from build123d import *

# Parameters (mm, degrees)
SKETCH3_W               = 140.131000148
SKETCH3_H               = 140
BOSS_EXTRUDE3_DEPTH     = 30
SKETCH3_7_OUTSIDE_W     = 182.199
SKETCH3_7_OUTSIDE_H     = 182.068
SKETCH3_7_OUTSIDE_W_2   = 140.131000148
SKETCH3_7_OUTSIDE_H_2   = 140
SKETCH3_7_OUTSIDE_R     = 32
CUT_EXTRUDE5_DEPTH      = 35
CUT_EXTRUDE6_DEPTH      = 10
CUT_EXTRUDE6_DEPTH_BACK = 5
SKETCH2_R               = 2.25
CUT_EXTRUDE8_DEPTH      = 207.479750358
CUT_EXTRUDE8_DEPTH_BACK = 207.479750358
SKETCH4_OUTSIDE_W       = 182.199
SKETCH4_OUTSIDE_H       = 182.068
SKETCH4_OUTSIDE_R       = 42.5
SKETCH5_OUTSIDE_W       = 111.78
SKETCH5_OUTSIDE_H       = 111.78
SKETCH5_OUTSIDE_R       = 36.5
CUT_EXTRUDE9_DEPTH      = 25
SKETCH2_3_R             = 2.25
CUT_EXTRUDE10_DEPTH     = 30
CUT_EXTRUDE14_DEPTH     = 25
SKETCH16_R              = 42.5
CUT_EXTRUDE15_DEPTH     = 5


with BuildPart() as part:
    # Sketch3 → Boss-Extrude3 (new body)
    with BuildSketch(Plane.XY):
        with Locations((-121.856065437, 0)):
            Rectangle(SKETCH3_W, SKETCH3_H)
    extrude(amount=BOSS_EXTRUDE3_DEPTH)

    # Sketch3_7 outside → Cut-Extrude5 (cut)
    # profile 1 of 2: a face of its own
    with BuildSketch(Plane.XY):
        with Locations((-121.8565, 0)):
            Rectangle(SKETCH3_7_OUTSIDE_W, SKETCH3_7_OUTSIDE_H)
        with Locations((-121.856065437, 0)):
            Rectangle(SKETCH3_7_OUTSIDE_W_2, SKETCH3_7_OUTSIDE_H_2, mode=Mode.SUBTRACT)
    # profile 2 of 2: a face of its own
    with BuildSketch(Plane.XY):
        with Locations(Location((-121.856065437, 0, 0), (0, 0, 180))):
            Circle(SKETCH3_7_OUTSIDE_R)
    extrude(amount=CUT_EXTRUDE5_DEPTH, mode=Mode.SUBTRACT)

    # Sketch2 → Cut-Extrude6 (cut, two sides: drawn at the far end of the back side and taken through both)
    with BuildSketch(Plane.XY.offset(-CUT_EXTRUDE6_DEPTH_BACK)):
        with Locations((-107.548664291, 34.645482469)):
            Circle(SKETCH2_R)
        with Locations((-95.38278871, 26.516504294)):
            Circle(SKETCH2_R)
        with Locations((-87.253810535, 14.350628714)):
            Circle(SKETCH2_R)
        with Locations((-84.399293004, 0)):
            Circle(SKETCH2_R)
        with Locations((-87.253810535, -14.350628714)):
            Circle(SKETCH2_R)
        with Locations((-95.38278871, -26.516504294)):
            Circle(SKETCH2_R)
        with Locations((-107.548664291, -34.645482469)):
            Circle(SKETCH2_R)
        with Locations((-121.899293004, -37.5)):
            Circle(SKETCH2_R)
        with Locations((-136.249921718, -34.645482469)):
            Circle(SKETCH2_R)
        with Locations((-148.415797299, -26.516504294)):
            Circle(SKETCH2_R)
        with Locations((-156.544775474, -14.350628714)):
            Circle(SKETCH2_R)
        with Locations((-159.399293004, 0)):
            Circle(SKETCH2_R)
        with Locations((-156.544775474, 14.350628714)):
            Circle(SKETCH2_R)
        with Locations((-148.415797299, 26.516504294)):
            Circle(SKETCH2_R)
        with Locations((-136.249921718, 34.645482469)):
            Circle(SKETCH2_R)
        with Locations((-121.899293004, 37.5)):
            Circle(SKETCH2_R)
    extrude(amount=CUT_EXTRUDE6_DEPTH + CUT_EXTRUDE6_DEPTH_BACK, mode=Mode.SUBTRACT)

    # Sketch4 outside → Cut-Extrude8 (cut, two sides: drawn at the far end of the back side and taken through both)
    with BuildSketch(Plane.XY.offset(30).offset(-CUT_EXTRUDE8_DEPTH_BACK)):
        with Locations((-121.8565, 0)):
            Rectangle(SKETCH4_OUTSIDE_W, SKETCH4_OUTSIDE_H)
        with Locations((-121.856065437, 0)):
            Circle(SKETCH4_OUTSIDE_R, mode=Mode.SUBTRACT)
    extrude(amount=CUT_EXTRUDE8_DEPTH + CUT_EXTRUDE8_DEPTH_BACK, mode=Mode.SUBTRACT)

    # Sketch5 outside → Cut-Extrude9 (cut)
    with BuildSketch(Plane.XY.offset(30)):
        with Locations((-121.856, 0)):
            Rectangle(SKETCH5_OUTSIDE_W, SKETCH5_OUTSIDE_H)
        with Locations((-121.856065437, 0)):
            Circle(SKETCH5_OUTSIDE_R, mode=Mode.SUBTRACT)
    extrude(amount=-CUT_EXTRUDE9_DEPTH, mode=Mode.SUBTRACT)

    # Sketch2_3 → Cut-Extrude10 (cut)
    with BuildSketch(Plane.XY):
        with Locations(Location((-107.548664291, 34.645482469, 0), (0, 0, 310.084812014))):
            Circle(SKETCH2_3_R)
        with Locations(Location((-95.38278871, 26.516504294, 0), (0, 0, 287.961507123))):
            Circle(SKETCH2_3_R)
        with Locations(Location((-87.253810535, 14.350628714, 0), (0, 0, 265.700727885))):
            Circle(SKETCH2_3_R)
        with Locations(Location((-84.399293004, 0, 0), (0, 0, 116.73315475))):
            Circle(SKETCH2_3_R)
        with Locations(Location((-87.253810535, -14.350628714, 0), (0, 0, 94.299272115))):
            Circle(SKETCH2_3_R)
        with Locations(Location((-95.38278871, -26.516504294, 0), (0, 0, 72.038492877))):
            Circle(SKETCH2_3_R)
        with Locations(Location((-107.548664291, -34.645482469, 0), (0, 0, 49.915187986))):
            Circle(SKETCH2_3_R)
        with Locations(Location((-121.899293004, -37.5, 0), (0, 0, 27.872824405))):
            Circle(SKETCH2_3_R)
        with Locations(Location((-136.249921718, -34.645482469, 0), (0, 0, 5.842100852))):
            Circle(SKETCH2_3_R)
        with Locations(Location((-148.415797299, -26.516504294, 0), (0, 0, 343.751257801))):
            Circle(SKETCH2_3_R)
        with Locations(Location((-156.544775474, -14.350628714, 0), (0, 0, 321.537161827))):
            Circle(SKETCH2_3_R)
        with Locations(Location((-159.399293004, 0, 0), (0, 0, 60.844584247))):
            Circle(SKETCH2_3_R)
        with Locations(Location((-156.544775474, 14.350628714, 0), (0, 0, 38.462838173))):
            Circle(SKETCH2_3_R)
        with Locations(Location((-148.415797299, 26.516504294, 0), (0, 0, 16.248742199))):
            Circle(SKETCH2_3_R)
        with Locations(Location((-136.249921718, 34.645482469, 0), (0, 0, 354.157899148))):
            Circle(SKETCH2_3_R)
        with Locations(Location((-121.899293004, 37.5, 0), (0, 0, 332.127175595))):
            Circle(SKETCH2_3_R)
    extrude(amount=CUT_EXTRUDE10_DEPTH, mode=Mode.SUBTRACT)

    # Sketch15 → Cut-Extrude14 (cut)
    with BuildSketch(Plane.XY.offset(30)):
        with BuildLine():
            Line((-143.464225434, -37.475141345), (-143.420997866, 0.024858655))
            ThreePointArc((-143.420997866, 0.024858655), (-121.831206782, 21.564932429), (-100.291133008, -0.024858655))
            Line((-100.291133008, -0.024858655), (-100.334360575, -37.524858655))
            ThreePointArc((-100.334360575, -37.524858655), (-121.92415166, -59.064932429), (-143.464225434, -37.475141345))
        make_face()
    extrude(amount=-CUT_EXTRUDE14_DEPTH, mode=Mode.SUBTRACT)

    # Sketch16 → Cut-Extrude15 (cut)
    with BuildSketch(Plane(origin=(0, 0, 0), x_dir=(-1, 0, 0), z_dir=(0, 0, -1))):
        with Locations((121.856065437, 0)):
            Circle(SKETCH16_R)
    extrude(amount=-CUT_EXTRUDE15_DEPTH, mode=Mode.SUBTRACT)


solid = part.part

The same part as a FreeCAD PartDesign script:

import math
import FreeCAD as App
import Part
import Sketcher

V = App.Vector

doc = App.newDocument("Part")
params = doc.addObject("Spreadsheet::Sheet", "Params")
for row, (alias, value) in enumerate([
    ("sketch1_height", "140 mm"),
    ("pad1_length", "30 mm"),
    ("sketch2_diameter", "64 mm"),
    ("sketch2_height", "140 mm"),
    ("pocket1_length", "35 mm"),
    ("sketch3_diameter", "4.5 mm"),
    ("pocket2_length", "10 mm"),
    ("pocket2_length2", "5 mm"),
    ("sketch4_diameter", "85 mm"),
    ("sketch5_diameter", "73 mm"),
    ("sketch5_width", "111.78 mm"),
    ("pocket4_length", "25 mm"),
    ("sketch6_diameter", "4.5 mm"),
    ("pocket5_length", "30 mm"),
    ("pocket6_length", "25 mm"),
    ("sketch8_diameter", "85 mm"),
    ("pocket7_length", "5 mm"),
], start=1):
    params.set(f"A{row}", alias)
    params.set(f"B{row}", "=" + value)
    params.setAlias(f"B{row}", alias)

body = doc.addObject("PartDesign::Body", "Body")

# Sketch on XY plane
sketch1 = body.newObject("Sketcher::SketchObject", "Sketch")
sketch1.AttachmentSupport = (doc.getObject("XY_Plane"), [""])
sketch1.MapMode = "FlatFace"
sketch1.addGeometry([
    Part.LineSegment(V(-191.921566, 70, 0), V(-191.921566, -70, 0)),
    Part.LineSegment(V(-191.921566, -70, 0), V(-51.790565, -70, 0)),
    Part.LineSegment(V(-51.790565, -70, 0), V(-51.790565, 70, 0)),
    Part.LineSegment(V(-51.790565, 70, 0), V(-191.921566, 70, 0)),
], False)
sketch1.addConstraint([
    Sketcher.Constraint("Coincident", 0, 2, 1, 1),
    Sketcher.Constraint("Coincident", 1, 2, 2, 1),
    Sketcher.Constraint("Coincident", 2, 2, 3, 1),
    Sketcher.Constraint("Coincident", 3, 2, 0, 1),
    Sketcher.Constraint("Vertical", 0),
    Sketcher.Constraint("Horizontal", 1),
    Sketcher.Constraint("Vertical", 2),
    Sketcher.Constraint("Horizontal", 3),
    Sketcher.Constraint("DistanceY", 0, 2, 0, 1, 140.0),
    Sketcher.Constraint("DistanceY", 0, 2, -1, 1, 70.0),
    Sketcher.Constraint("DistanceX", 1, 1, 1, 2, 140.131),
    Sketcher.Constraint("DistanceX", 0, 2, -1, 1, 191.921566),
])
sketch1.setExpression("Constraints[8]", "Params.sketch1_height")
pad1 = body.newObject("PartDesign::Pad", "Pad")
pad1.Profile = sketch1
pad1.setExpression("Length", "Params.pad1_length")

# Sketch on XY plane
sketch2 = body.newObject("Sketcher::SketchObject", "Sketch001")
sketch2.AttachmentSupport = (doc.getObject("XY_Plane"), [""])
sketch2.MapMode = "FlatFace"
sketch2.addGeometry([
    Part.LineSegment(V(-212.956, 91.034, 0), V(-212.956, -91.034, 0)),  # 0
    Part.LineSegment(V(-212.956, -91.034, 0), V(-30.757, -91.034, 0)),  # 1
    Part.LineSegment(V(-30.757, -91.034, 0), V(-30.757, 91.034, 0)),  # 2
    Part.LineSegment(V(-30.757, 91.034, 0), V(-212.956, 91.034, 0)),  # 3
    Part.LineSegment(V(-51.790565, -70, 0), V(-191.921566, -70, 0)),  # 4
    Part.LineSegment(V(-191.921566, -70, 0), V(-191.921566, 70, 0)),  # 5
    Part.LineSegment(V(-191.921566, 70, 0), V(-51.790565, 70, 0)),  # 6
    Part.LineSegment(V(-51.790565, 70, 0), V(-51.790565, -70, 0)),  # 7
    Part.Circle(V(-121.856065, 0, 0), V(0, 0, 1), 32),  # 8
], False)
sketch2.addConstraint([
    Sketcher.Constraint("Coincident", 0, 2, 1, 1),
    Sketcher.Constraint("Coincident", 1, 2, 2, 1),
    Sketcher.Constraint("Coincident", 2, 2, 3, 1),
    Sketcher.Constraint("Coincident", 3, 2, 0, 1),
    Sketcher.Constraint("Coincident", 4, 2, 5, 1),
    Sketcher.Constraint("Coincident", 5, 2, 6, 1),
    Sketcher.Constraint("Coincident", 6, 2, 7, 1),
    Sketcher.Constraint("Coincident", 7, 2, 4, 1),
    Sketcher.Constraint("Vertical", 0),
    Sketcher.Constraint("Horizontal", 1),
    Sketcher.Constraint("Vertical", 2),
    Sketcher.Constraint("Horizontal", 3),
    Sketcher.Constraint("Horizontal", 4),
    Sketcher.Constraint("Vertical", 5),
    Sketcher.Constraint("Horizontal", 6),
    Sketcher.Constraint("Vertical", 7),
    Sketcher.Constraint("PointOnObject", 8, 3, -1),
    Sketcher.Constraint("Diameter", 8, 64.0),
    Sketcher.Constraint("DistanceY", 5, 1, 5, 2, 140.0),
    Sketcher.Constraint("DistanceY", 4, 2, -1, 1, 70.0),
    Sketcher.Constraint("DistanceX", 1, 1, 1, 2, 182.199),
    Sketcher.Constraint("DistanceX", 4, 2, 4, 1, 140.131),
    Sketcher.Constraint("DistanceY", 0, 2, 0, 1, 182.068),
    Sketcher.Constraint("DistanceX", 0, 2, -1, 1, 212.956),
    Sketcher.Constraint("DistanceY", 0, 2, -1, 1, 91.034),
    Sketcher.Constraint("DistanceX", 4, 2, 8, 3, 70.0655),
    Sketcher.Constraint("DistanceX", 8, 3, -1, 1, 121.856065),
])
sketch2.setExpression("Constraints[17]", "Params.sketch2_diameter")
sketch2.setExpression("Constraints[18]", "Params.sketch2_height")
pocket1 = body.newObject("PartDesign::Pocket", "Pocket")
pocket1.Profile = sketch2
pocket1.setExpression("Length", "Params.pocket1_length")
pocket1.Reversed = True

# Sketch on XY plane
sketch3 = body.newObject("Sketcher::SketchObject", "Sketch002")
sketch3.AttachmentSupport = (doc.getObject("XY_Plane"), [""])
sketch3.MapMode = "FlatFace"
sketch3.addGeometry([
    Part.Circle(V(-107.548664, 34.645482, 0), V(0, 0, 1), 2.25),  # 0
    Part.Circle(V(-95.382789, 26.516504, 0), V(0, 0, 1), 2.25),  # 1
    Part.Circle(V(-87.253811, 14.350629, 0), V(0, 0, 1), 2.25),  # 2
    Part.Circle(V(-84.399293, 0, 0), V(0, 0, 1), 2.25),  # 3
    Part.Circle(V(-87.253811, -14.350629, 0), V(0, 0, 1), 2.25),  # 4
    Part.Circle(V(-95.382789, -26.516504, 0), V(0, 0, 1), 2.25),  # 5
    Part.Circle(V(-107.548664, -34.645482, 0), V(0, 0, 1), 2.25),  # 6
    Part.Circle(V(-121.899293, -37.5, 0), V(0, 0, 1), 2.25),  # 7
    Part.Circle(V(-136.249922, -34.645482, 0), V(0, 0, 1), 2.25),  # 8
    Part.Circle(V(-148.415797, -26.516504, 0), V(0, 0, 1), 2.25),  # 9
    Part.Circle(V(-156.544775, -14.350629, 0), V(0, 0, 1), 2.25),  # 10
    Part.Circle(V(-159.399293, 0, 0), V(0, 0, 1), 2.25),  # 11
    Part.Circle(V(-156.544775, 14.350629, 0), V(0, 0, 1), 2.25),  # 12
    Part.Circle(V(-148.415797, 26.516504, 0), V(0, 0, 1), 2.25),  # 13
    Part.Circle(V(-136.249922, 34.645482, 0), V(0, 0, 1), 2.25),  # 14
    Part.Circle(V(-121.899293, 37.5, 0), V(0, 0, 1), 2.25),  # 15
], False)
sketch3.addConstraint([
    Sketcher.Constraint("Equal", 0, 1),
    Sketcher.Constraint("Equal", 1, 2),
    Sketcher.Constraint("Equal", 2, 3),
    Sketcher.Constraint("Equal", 3, 4),
    Sketcher.Constraint("Equal", 4, 5),
    Sketcher.Constraint("Equal", 5, 6),
    Sketcher.Constraint("Equal", 6, 7),
    Sketcher.Constraint("Equal", 7, 8),
    Sketcher.Constraint("Equal", 8, 9),
    Sketcher.Constraint("Equal", 9, 10),
    Sketcher.Constraint("Equal", 10, 11),
    Sketcher.Constraint("Equal", 11, 12),
    Sketcher.Constraint("Equal", 12, 13),
    Sketcher.Constraint("Equal", 13, 14),
    Sketcher.Constraint("Equal", 14, 15),
    Sketcher.Constraint("Symmetric", 2, 3, 4, 3, -1),
    Sketcher.Constraint("Symmetric", 1, 3, 5, 3, -1),
    Sketcher.Constraint("Symmetric", 0, 3, 6, 3, -1),
    Sketcher.Constraint("Symmetric", 10, 3, 12, 3, -1),
    Sketcher.Constraint("Symmetric", 9, 3, 13, 3, -1),
    Sketcher.Constraint("Symmetric", 8, 3, 14, 3, -1),
    Sketcher.Constraint("Symmetric", 7, 3, 15, 3, -1),
    Sketcher.Constraint("PointOnObject", 3, 3, -1),
    Sketcher.Constraint("PointOnObject", 11, 3, -1),
    Sketcher.Constraint("Horizontal", 6, 3, 8, 3),
    Sketcher.Constraint("Horizontal", 5, 3, 9, 3),
    Sketcher.Constraint("Horizontal", 4, 3, 10, 3),
    Sketcher.Constraint("Diameter", 0, 4.5),
    Sketcher.Constraint("DistanceY", 7, 3, -1, 1, 37.5),
    Sketcher.Constraint("DistanceX", 7, 3, 3, 3, 37.5),
    Sketcher.Constraint("DistanceX", 11, 3, 7, 3, 37.5),
    Sketcher.Constraint("DistanceX", 1, 3, -1, 1, 95.382789),
    Sketcher.Constraint("DistanceX", 2, 3, -1, 1, 87.253811),
    Sketcher.Constraint("DistanceY", -1, 1, 2, 3, 14.350629),
    Sketcher.Constraint("DistanceX", 8, 3, -1, 1, 136.249922),
    Sketcher.Constraint("DistanceY", 1, 3, 0, 3, 8.128978),
    Sketcher.Constraint("DistanceX", 0, 3, 3, 3, 23.149371),
    Sketcher.Constraint("DistanceY", 4, 3, 0, 3, 48.996111),
    Sketcher.Constraint("DistanceX", 8, 3, 7, 3, 14.350629),
    Sketcher.Constraint("DistanceX", 9, 3, 5, 3, 53.033009),
    Sketcher.Constraint("DistanceX", 10, 3, 9, 3, 8.128978),
])
sketch3.setExpression("Constraints[27]", "Params.sketch3_diameter")
pocket2 = body.newObject("PartDesign::Pocket", "Pocket001")
pocket2.Profile = sketch3
pocket2.Type = "TwoLengths"
pocket2.setExpression("Length", "Params.pocket2_length")
pocket2.setExpression("Length2", "Params.pocket2_length2")
pocket2.Reversed = True

# Sketch on XY plane
sketch4 = body.newObject("Sketcher::SketchObject", "Sketch003")
sketch4.AttachmentSupport = (doc.getObject("XY_Plane"), [""])
sketch4.MapMode = "FlatFace"
sketch4.AttachmentOffset = App.Placement(V(0, 0, 30), App.Rotation())
sketch4.addGeometry([
    Part.LineSegment(V(-212.956, 91.034, 0), V(-212.956, -91.034, 0)),  # 0
    Part.LineSegment(V(-212.956, -91.034, 0), V(-30.757, -91.034, 0)),  # 1
    Part.LineSegment(V(-30.757, -91.034, 0), V(-30.757, 91.034, 0)),  # 2
    Part.LineSegment(V(-30.757, 91.034, 0), V(-212.956, 91.034, 0)),  # 3
    Part.Circle(V(-121.856065, 0, 0), V(0, 0, 1), 42.5),  # 4
], False)
sketch4.addConstraint([
    Sketcher.Constraint("Coincident", 0, 2, 1, 1),
    Sketcher.Constraint("Coincident", 1, 2, 2, 1),
    Sketcher.Constraint("Coincident", 2, 2, 3, 1),
    Sketcher.Constraint("Coincident", 3, 2, 0, 1),
    Sketcher.Constraint("Vertical", 0),
    Sketcher.Constraint("Horizontal", 1),
    Sketcher.Constraint("Vertical", 2),
    Sketcher.Constraint("Horizontal", 3),
    Sketcher.Constraint("PointOnObject", 4, 3, -1),
    Sketcher.Constraint("Diameter", 4, 85.0),
    Sketcher.Constraint("DistanceX", 1, 1, 1, 2, 182.199),
    Sketcher.Constraint("DistanceY", 0, 2, 0, 1, 182.068),
    Sketcher.Constraint("DistanceX", 0, 2, -1, 1, 212.956),
    Sketcher.Constraint("DistanceY", 0, 2, -1, 1, 91.034),
    Sketcher.Constraint("DistanceX", 4, 3, -1, 1, 121.856065),
])
sketch4.setExpression("Constraints[9]", "Params.sketch4_diameter")
pocket3 = body.newObject("PartDesign::Pocket", "Pocket002")
pocket3.Profile = sketch4
pocket3.Type = "ThroughAll"
pocket3.Midplane = True

# Sketch on XY plane
sketch5 = body.newObject("Sketcher::SketchObject", "Sketch004")
sketch5.AttachmentSupport = (doc.getObject("XY_Plane"), [""])
sketch5.MapMode = "FlatFace"
sketch5.AttachmentOffset = App.Placement(V(0, 0, 30), App.Rotation())
sketch5.addGeometry([
    Part.LineSegment(V(-177.746, 55.89, 0), V(-177.746, -55.89, 0)),  # 0
    Part.LineSegment(V(-177.746, -55.89, 0), V(-65.966, -55.89, 0)),  # 1
    Part.LineSegment(V(-65.966, -55.89, 0), V(-65.966, 55.89, 0)),  # 2
    Part.LineSegment(V(-65.966, 55.89, 0), V(-177.746, 55.89, 0)),  # 3
    Part.Circle(V(-121.856065, 0, 0), V(0, 0, 1), 36.5),  # 4
], False)
sketch5.addConstraint([
    Sketcher.Constraint("Coincident", 0, 2, 1, 1),
    Sketcher.Constraint("Coincident", 1, 2, 2, 1),
    Sketcher.Constraint("Coincident", 2, 2, 3, 1),
    Sketcher.Constraint("Coincident", 3, 2, 0, 1),
    Sketcher.Constraint("Vertical", 0),
    Sketcher.Constraint("Horizontal", 1),
    Sketcher.Constraint("Vertical", 2),
    Sketcher.Constraint("Horizontal", 3),
    Sketcher.Constraint("PointOnObject", 4, 3, -1),
    Sketcher.Constraint("Equal", 3, 0),
    Sketcher.Constraint("Diameter", 4, 73.0),
    Sketcher.Constraint("DistanceX", 1, 1, 1, 2, 111.78),
    Sketcher.Constraint("DistanceY", 0, 2, -1, 1, 55.89),
    Sketcher.Constraint("DistanceX", 0, 2, -1, 1, 177.746),
    Sketcher.Constraint("DistanceX", 4, 3, -1, 1, 121.856065),
])
sketch5.setExpression("Constraints[10]", "Params.sketch5_diameter")
sketch5.setExpression("Constraints[11]", "Params.sketch5_width")
pocket4 = body.newObject("PartDesign::Pocket", "Pocket003")
pocket4.Profile = sketch5
pocket4.setExpression("Length", "Params.pocket4_length")

# Sketch on XY plane
sketch6 = body.newObject("Sketcher::SketchObject", "Sketch005")
sketch6.AttachmentSupport = (doc.getObject("XY_Plane"), [""])
sketch6.MapMode = "FlatFace"
sketch6.addGeometry([
    Part.Circle(V(-107.548664, 34.645482, 0), V(0, 0, 1), 2.25),  # 0
    Part.Circle(V(-95.382789, 26.516504, 0), V(0, 0, 1), 2.25),  # 1
    Part.Circle(V(-87.253811, 14.350629, 0), V(0, 0, 1), 2.25),  # 2
    Part.Circle(V(-84.399293, 0, 0), V(0, 0, 1), 2.25),  # 3
    Part.Circle(V(-87.253811, -14.350629, 0), V(0, 0, 1), 2.25),  # 4
    Part.Circle(V(-95.382789, -26.516504, 0), V(0, 0, 1), 2.25),  # 5
    Part.Circle(V(-107.548664, -34.645482, 0), V(0, 0, 1), 2.25),  # 6
    Part.Circle(V(-121.899293, -37.5, 0), V(0, 0, 1), 2.25),  # 7
    Part.Circle(V(-136.249922, -34.645482, 0), V(0, 0, 1), 2.25),  # 8
    Part.Circle(V(-148.415797, -26.516504, 0), V(0, 0, 1), 2.25),  # 9
    Part.Circle(V(-156.544775, -14.350629, 0), V(0, 0, 1), 2.25),  # 10
    Part.Circle(V(-159.399293, 0, 0), V(0, 0, 1), 2.25),  # 11
    Part.Circle(V(-156.544775, 14.350629, 0), V(0, 0, 1), 2.25),  # 12
    Part.Circle(V(-148.415797, 26.516504, 0), V(0, 0, 1), 2.25),  # 13
    Part.Circle(V(-136.249922, 34.645482, 0), V(0, 0, 1), 2.25),  # 14
    Part.Circle(V(-121.899293, 37.5, 0), V(0, 0, 1), 2.25),  # 15
], False)
sketch6.addConstraint([
    Sketcher.Constraint("Equal", 0, 1),
    Sketcher.Constraint("Equal", 1, 2),
    Sketcher.Constraint("Equal", 2, 3),
    Sketcher.Constraint("Equal", 3, 4),
    Sketcher.Constraint("Equal", 4, 5),
    Sketcher.Constraint("Equal", 5, 6),
    Sketcher.Constraint("Equal", 6, 7),
    Sketcher.Constraint("Equal", 7, 8),
    Sketcher.Constraint("Equal", 8, 9),
    Sketcher.Constraint("Equal", 9, 10),
    Sketcher.Constraint("Equal", 10, 11),
    Sketcher.Constraint("Equal", 11, 12),
    Sketcher.Constraint("Equal", 12, 13),
    Sketcher.Constraint("Equal", 13, 14),
    Sketcher.Constraint("Equal", 14, 15),
    Sketcher.Constraint("Symmetric", 2, 3, 4, 3, -1),
    Sketcher.Constraint("Symmetric", 1, 3, 5, 3, -1),
    Sketcher.Constraint("Symmetric", 0, 3, 6, 3, -1),
    Sketcher.Constraint("Symmetric", 10, 3, 12, 3, -1),
    Sketcher.Constraint("Symmetric", 9, 3, 13, 3, -1),
    Sketcher.Constraint("Symmetric", 8, 3, 14, 3, -1),
    Sketcher.Constraint("Symmetric", 7, 3, 15, 3, -1),
    Sketcher.Constraint("PointOnObject", 3, 3, -1),
    Sketcher.Constraint("PointOnObject", 11, 3, -1),
    Sketcher.Constraint("Horizontal", 6, 3, 8, 3),
    Sketcher.Constraint("Horizontal", 5, 3, 9, 3),
    Sketcher.Constraint("Horizontal", 4, 3, 10, 3),
    Sketcher.Constraint("Diameter", 0, 4.5),
    Sketcher.Constraint("DistanceY", 7, 3, -1, 1, 37.5),
    Sketcher.Constraint("DistanceX", 7, 3, 3, 3, 37.5),
    Sketcher.Constraint("DistanceX", 11, 3, 7, 3, 37.5),
    Sketcher.Constraint("DistanceX", 1, 3, -1, 1, 95.382789),
    Sketcher.Constraint("DistanceX", 2, 3, -1, 1, 87.253811),
    Sketcher.Constraint("DistanceY", -1, 1, 2, 3, 14.350629),
    Sketcher.Constraint("DistanceX", 8, 3, -1, 1, 136.249922),
    Sketcher.Constraint("DistanceY", 1, 3, 0, 3, 8.128978),
    Sketcher.Constraint("DistanceX", 0, 3, 3, 3, 23.149371),
    Sketcher.Constraint("DistanceY", 4, 3, 0, 3, 48.996111),
    Sketcher.Constraint("DistanceX", 8, 3, 7, 3, 14.350629),
    Sketcher.Constraint("DistanceX", 9, 3, 5, 3, 53.033009),
    Sketcher.Constraint("DistanceX", 10, 3, 9, 3, 8.128978),
])
sketch6.setExpression("Constraints[27]", "Params.sketch6_diameter")
pocket5 = body.newObject("PartDesign::Pocket", "Pocket004")
pocket5.Profile = sketch6
pocket5.setExpression("Length", "Params.pocket5_length")
pocket5.Reversed = True

# Sketch on XY plane
sketch7 = body.newObject("Sketcher::SketchObject", "Sketch006")
sketch7.AttachmentSupport = (doc.getObject("XY_Plane"), [""])
sketch7.MapMode = "FlatFace"
sketch7.AttachmentOffset = App.Placement(V(0, 0, 30), App.Rotation())
sketch7.addGeometry([
    Part.LineSegment(V(-143.420998, 0.024859, 0), V(-143.464225, -37.475141, 0)),
    Part.ArcOfCircle(Part.Circle(V(-121.899293, -37.5, 0), V(0, 0, 1), 21.564947), math.radians(179.933953), math.radians(359.933953)),
    Part.LineSegment(V(-100.334361, -37.524859, 0), V(-100.291133, -0.024859, 0)),
    Part.ArcOfCircle(Part.Circle(V(-121.856065, 0, 0), V(0, 0, 1), 21.564947), math.radians(-0.066047), math.radians(179.933953)),
], False)
sketch7.addConstraint([
    Sketcher.Constraint("Tangent", 0, 2, 1, 1),
    Sketcher.Constraint("Tangent", 1, 2, 2, 1),
    Sketcher.Constraint("Tangent", 2, 2, 3, 1),
    Sketcher.Constraint("Tangent", 3, 2, 0, 1),
    Sketcher.Constraint("Equal", 1, 3),
    Sketcher.Constraint("PointOnObject", 3, 3, -1),
    Sketcher.Constraint("DistanceY", 1, 3, -1, 1, 37.5),
    Sketcher.Constraint("Radius", 1, 21.564947),
    Sketcher.Constraint("DistanceY", 0, 2, -1, 1, 37.475141),
    Sketcher.Constraint("DistanceX", 1, 2, -1, 1, 100.334361),
])
pocket6 = body.newObject("PartDesign::Pocket", "Pocket005")
pocket6.Profile = sketch7
pocket6.setExpression("Length", "Params.pocket6_length")

# Sketch on XY plane
sketch8 = body.newObject("Sketcher::SketchObject", "Sketch007")
sketch8.AttachmentSupport = (doc.getObject("XY_Plane"), [""])
sketch8.MapMode = "FlatFace"
sketch8.addGeometry(Part.Circle(V(-121.856065, 0, 0), V(0, 0, 1), 42.5), False)
sketch8.addConstraint([
    Sketcher.Constraint("PointOnObject", 0, 3, -1),
    Sketcher.Constraint("Diameter", 0, 85.0),
    Sketcher.Constraint("DistanceX", 0, 3, -1, 1, 121.856065),
])
sketch8.setExpression("Constraints[1]", "Params.sketch8_diameter")
pocket7 = body.newObject("PartDesign::Pocket", "Pocket006")
pocket7.Profile = sketch8
pocket7.setExpression("Length", "Params.pocket7_length")
pocket7.Reversed = True

doc.recompute()
